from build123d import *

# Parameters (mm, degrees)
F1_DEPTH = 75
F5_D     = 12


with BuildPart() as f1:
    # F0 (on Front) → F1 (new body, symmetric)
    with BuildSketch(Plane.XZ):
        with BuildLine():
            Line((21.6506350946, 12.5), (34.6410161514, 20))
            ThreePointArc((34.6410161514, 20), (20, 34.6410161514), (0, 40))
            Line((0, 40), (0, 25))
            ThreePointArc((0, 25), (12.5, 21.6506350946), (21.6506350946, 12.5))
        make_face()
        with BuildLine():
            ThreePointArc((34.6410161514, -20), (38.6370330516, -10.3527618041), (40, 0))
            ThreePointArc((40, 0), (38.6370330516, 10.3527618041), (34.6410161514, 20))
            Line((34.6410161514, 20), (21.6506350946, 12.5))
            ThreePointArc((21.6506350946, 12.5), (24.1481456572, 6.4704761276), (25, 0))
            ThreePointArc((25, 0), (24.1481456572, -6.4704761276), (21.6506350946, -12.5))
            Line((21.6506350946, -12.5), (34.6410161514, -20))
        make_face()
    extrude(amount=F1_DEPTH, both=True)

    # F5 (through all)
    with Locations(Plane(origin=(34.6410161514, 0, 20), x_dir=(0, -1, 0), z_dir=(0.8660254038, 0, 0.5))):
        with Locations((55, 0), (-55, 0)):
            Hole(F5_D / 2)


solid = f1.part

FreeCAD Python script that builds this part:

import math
import FreeCAD as App
import Part
import Sketcher

V = App.Vector
Q = App.Units.Quantity

doc = App.newDocument("Part")
body = doc.addObject("PartDesign::Body", "Body")

# Sketch on XZ plane
sketch1 = body.newObject("Sketcher::SketchObject", "Sketch")
sketch1.AttachmentSupport = (doc.getObject("XZ_Plane"), [""])
sketch1.MapMode = "FlatFace"
sketch1.addGeometry(Part.ArcOfCircle(Part.Circle(V(0, 0, 0), V(0, 0, 1), 40), math.radians(30), math.radians(90)), False)
sketch1.addGeometry(Part.LineSegment(V(0, 40, 0), V(0, 25, 0)), False)
sketch1.addGeometry(Part.ArcOfCircle(Part.Circle(V(0, 0, 0), V(0, 0, 1), 25), math.radians(30), math.radians(90)), False)
sketch1.addGeometry(Part.ArcOfCircle(Part.Circle(V(0, 0, 0), V(0, 0, 1), 25), math.radians(0), math.radians(30)), False)
sketch1.addGeometry(Part.ArcOfCircle(Part.Circle(V(0, 0, 0), V(0, 0, 1), 25), math.radians(-30), math.radians(0)), False)
sketch1.addGeometry(Part.LineSegment(V(22, -12, 0), V(35, -20, 0)), False)
sketch1.addGeometry(Part.ArcOfCircle(Part.Circle(V(0, 0, 0), V(0, 0, 1), 40), math.radians(-30), math.radians(0)), False)
sketch1.addGeometry(Part.ArcOfCircle(Part.Circle(V(0, 0, 0), V(0, 0, 1), 40), math.radians(0), math.radians(30)), False)
sketch1.addConstraint(Sketcher.Constraint("Coincident", 0, 2, 1, 1))
sketch1.addConstraint(Sketcher.Constraint("Coincident", 1, 2, 2, 2))
sketch1.addConstraint(Sketcher.Constraint("Tangent", 2, 1, 3, 2))
sketch1.addConstraint(Sketcher.Constraint("Tangent", 3, 1, 4, 2))
sketch1.addConstraint(Sketcher.Constraint("Coincident", 4, 1, 5, 1))
sketch1.addConstraint(Sketcher.Constraint("Coincident", 5, 2, 6, 1))
sketch1.addConstraint(Sketcher.Constraint("Tangent", 6, 2, 7, 1))
sketch1.addConstraint(Sketcher.Constraint("Tangent", 7, 2, 0, 1))
sketch1.addConstraint(Sketcher.Constraint("Vertical", 1))
sketch1.addConstraint(Sketcher.Constraint("Coincident", 0, 3, -1, 1))
sketch1.addConstraint(Sketcher.Constraint("Coincident", 2, 3, -1, 1))
sketch1.addConstraint(Sketcher.Constraint("Coincident", 4, 3, -1, 1))
sketch1.addConstraint(Sketcher.Constraint("Coincident", 6, 3, -1, 1))
sketch1.addConstraint(Sketcher.Constraint("PointOnObject", 0, 2, -2))
sketch1.addConstraint(Sketcher.Constraint("PointOnObject", 3, 1, -1))
sketch1.addConstraint(Sketcher.Constraint("PointOnObject", 6, 2, -1))
sketch1.addConstraint(Sketcher.Constraint("Vertical", 2, 1, 4, 1))
sketch1.addConstraint(Sketcher.Constraint("Vertical", 5, 2, 7, 2))
sketch1.addConstraint(Sketcher.Constraint("Radius", 0, 40.0))
sketch1.addConstraint(Sketcher.Constraint("Radius", 2, 25.0))
sketch1.addConstraint(Sketcher.Constraint("Angle", 5, Q("-30 deg")))
sketch1.addConstraint(Sketcher.Constraint("DistanceY", 5, 2, -1, 1, 20.0))
pad1 = body.newObject("PartDesign::Pad", "Pad")
pad1.Profile = sketch1
pad1.Length = 150
pad1.Midplane = True

# Sketch on an angled plane
sketch2 = body.newObject("Sketcher::SketchObject", "Sketch001")
sketch2.Placement = App.Placement(V(34.641016, 0, 20), App.Rotation(V(0, -1, 0), V(0.5, 0, -0.866025404), V(0.866025404, 0, 0.5), "ZXY"))
sketch2.addGeometry(Part.Circle(V(55, 0, 0), V(0, 0, 1), 6), False)
sketch2.addGeometry(Part.Circle(V(-55, 0, 0), V(0, 0, 1), 6), False)
sketch2.addConstraint(Sketcher.Constraint("Equal", 0, 1))
sketch2.addConstraint(Sketcher.Constraint("Symmetric", 0, 3, 1, 3, -1, 1))
sketch2.addConstraint(Sketcher.Constraint("PointOnObject", 0, 3, -1))
sketch2.addConstraint(Sketcher.Constraint("Diameter", 0, 12.0))
sketch2.addConstraint(Sketcher.Constraint("DistanceX", -1, 1, 0, 3, 55.0))
doc.recompute()
hole = body.newObject("PartDesign::Hole", "Hole")
hole.Profile = sketch2
hole.ThreadType = "None"
hole.Diameter = 12
hole.DepthType = "ThroughAll"

doc.recompute()
